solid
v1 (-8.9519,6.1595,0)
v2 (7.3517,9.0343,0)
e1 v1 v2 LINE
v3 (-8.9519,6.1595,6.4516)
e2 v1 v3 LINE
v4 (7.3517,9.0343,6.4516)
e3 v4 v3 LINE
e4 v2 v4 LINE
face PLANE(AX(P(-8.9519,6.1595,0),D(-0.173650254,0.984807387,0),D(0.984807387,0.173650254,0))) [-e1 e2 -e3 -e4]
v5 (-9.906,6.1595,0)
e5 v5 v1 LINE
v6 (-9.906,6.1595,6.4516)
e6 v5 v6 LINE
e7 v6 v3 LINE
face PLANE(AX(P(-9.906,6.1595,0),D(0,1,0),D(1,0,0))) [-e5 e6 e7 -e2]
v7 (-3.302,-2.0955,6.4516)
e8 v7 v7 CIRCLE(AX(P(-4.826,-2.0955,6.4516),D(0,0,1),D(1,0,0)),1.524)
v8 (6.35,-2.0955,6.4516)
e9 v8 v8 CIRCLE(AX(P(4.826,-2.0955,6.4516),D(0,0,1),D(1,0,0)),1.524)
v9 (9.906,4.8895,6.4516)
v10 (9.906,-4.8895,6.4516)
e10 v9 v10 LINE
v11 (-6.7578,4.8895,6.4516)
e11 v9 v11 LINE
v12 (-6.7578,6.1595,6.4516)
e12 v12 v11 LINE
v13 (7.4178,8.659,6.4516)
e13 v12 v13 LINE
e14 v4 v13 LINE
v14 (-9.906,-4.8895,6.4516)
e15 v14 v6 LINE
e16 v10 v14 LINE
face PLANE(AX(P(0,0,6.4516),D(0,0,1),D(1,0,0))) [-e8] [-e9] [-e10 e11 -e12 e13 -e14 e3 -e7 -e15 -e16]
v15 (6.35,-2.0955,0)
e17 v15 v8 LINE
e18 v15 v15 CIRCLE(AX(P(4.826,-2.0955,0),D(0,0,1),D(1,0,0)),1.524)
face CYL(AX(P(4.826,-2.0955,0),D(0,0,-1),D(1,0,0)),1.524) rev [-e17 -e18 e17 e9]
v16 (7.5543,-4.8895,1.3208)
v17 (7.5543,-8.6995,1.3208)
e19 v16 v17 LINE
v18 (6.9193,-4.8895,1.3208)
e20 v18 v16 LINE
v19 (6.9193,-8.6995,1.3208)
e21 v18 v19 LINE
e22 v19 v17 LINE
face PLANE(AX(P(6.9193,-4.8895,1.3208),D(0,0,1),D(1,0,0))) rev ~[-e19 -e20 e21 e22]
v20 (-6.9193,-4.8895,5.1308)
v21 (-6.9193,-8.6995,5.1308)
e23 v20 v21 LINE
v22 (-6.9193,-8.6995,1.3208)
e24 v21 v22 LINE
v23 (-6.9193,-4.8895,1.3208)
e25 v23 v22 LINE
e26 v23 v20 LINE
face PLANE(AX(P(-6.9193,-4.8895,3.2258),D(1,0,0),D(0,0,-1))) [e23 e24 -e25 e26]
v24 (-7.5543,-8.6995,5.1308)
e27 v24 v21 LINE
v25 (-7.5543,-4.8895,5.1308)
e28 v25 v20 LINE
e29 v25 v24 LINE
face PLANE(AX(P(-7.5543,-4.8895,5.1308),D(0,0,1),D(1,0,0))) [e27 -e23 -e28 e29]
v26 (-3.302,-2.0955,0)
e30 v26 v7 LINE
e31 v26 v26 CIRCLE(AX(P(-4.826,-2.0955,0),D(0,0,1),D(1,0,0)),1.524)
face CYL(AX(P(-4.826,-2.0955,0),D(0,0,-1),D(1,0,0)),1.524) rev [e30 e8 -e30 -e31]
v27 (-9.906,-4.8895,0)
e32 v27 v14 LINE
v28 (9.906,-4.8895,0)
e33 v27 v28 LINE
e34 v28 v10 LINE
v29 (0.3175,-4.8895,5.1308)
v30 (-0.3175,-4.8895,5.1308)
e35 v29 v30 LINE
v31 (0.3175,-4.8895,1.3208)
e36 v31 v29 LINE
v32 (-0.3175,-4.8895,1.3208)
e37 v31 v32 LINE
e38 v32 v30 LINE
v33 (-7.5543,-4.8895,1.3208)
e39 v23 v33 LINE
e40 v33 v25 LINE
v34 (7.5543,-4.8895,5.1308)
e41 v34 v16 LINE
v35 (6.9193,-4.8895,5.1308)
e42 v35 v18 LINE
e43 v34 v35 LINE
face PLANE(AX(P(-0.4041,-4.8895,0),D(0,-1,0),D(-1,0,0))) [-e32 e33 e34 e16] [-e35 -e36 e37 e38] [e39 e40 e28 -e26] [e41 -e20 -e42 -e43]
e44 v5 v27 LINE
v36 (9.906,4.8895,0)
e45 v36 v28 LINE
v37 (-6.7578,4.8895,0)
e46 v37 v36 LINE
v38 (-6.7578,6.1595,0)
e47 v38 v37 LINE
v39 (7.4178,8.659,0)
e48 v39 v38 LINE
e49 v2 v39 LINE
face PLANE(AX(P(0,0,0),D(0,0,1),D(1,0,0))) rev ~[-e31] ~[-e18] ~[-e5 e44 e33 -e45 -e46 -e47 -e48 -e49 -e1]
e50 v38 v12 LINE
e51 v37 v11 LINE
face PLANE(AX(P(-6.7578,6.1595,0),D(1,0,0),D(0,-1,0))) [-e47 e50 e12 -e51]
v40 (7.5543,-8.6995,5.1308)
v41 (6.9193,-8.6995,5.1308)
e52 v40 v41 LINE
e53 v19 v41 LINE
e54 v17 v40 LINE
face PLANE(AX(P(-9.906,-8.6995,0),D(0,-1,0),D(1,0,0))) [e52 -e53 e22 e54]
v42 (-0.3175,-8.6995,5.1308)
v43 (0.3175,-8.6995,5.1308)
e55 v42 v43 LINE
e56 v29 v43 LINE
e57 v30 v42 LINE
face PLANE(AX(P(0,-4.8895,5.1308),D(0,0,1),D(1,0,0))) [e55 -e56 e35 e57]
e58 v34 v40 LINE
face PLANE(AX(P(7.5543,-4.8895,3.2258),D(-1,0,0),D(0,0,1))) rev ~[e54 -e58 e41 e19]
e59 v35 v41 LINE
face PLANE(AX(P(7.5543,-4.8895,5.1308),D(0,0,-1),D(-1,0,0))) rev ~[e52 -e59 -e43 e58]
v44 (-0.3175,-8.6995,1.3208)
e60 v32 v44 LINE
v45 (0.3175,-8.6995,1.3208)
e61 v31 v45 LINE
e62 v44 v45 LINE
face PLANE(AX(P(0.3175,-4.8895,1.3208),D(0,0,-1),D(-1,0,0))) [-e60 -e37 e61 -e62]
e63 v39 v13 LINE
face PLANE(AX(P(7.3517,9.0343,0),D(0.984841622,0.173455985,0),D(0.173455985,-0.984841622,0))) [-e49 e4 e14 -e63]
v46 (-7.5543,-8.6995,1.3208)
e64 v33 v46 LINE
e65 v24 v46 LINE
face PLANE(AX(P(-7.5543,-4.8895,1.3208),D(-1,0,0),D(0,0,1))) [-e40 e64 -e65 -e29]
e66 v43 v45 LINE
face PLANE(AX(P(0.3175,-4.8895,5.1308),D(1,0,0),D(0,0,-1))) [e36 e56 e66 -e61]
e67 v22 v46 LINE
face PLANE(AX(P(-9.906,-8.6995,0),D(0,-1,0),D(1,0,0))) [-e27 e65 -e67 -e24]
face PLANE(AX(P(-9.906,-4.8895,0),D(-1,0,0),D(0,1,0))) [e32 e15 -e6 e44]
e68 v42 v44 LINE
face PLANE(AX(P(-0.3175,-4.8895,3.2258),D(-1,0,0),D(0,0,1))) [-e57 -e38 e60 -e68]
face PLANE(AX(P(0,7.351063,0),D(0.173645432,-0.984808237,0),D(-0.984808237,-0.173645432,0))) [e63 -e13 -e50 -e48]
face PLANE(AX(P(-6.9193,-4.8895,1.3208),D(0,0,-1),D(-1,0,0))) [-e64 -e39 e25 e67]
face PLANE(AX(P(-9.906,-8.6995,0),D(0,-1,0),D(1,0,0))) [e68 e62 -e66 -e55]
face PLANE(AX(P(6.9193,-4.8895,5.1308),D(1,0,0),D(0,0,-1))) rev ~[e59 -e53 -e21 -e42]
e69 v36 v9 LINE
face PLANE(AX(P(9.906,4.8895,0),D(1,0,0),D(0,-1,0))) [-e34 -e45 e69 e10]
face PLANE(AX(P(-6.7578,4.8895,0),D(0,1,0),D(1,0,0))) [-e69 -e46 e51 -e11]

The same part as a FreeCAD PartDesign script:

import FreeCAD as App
import Part
import Sketcher
from FreeCAD import Vector
Q = App.Units.Quantity

doc = App.newDocument("Part")
params = doc.addObject("Spreadsheet::Sheet", "Params")
for row, (alias, value) in enumerate([
    ("sketch1_diameter", "0.12 in"),
    ("sketch1_width", "0.78 in"),
    ("sketch1_height", "0.385 in"),
    ("sketch1_height2", "0.435 in"),
    ("sketch1_length", "0.015 in"),
    ("pad1_length", "0.254 in"),
    ("sketch2_height", "0.15 in"),
    ("sketch2_width", "0.025 in"),
    ("pad2_length", "0.15 in"),
], start=1):
    params.set(f"A{row}", alias)
    params.set(f"B{row}", "=" + value)
    params.setAlias(f"B{row}", alias)

body = doc.addObject("PartDesign::Body", "Body")

# Sketch on XY plane
sketch1 = doc.addObject("Sketcher::SketchObject", "Sketch")
body.addObject(sketch1)
sketch1.AttachmentSupport = (doc.XY_Plane, [""])
sketch1.MapMode = "FlatFace"
sketch1.addGeometry(Part.LineSegment(Vector(-9.906, -4.8895, 0), Vector(9.906, -4.8895, 0)), False)
sketch1.addGeometry(Part.LineSegment(Vector(9.906, -4.8895, 0), Vector(9.906, 4.8895, 0)), False)
sketch1.addGeometry(Part.LineSegment(Vector(9.906, 4.8895, 0), Vector(-6.7578, 4.8895, 0)), False)
sketch1.addGeometry(Part.LineSegment(Vector(-6.7578, 4.8895, 0), Vector(-6.7578, 6.1595, 0)), False)
sketch1.addGeometry(Part.LineSegment(Vector(-6.7578, 6.1595, 0), Vector(7.4178, 8.659, 0)), False)
sketch1.addGeometry(Part.LineSegment(Vector(7.4178, 8.659, 0), Vector(7.3517, 9.0343, 0)), False)
sketch1.addGeometry(Part.LineSegment(Vector(7.3517, 9.0343, 0), Vector(-8.9519, 6.1595, 0)), False)
sketch1.addGeometry(Part.LineSegment(Vector(-8.9519, 6.1595, 0), Vector(-9.906, 6.1595, 0)), False)
sketch1.addGeometry(Part.LineSegment(Vector(-9.906, 6.1595, 0), Vector(-9.906, -4.8895, 0)), False)
sketch1.addGeometry(Part.Circle(Vector(-4.826, -2.0955, 0), Vector(0, 0, 1), 1.524), False)
sketch1.addGeometry(Part.Circle(Vector(4.826, -2.0955, 0), Vector(0, 0, 1), 1.524), False)
sketch1.addConstraint(Sketcher.Constraint("Coincident", 0, 2, 1, 1))
sketch1.addConstraint(Sketcher.Constraint("Coincident", 1, 2, 2, 1))
sketch1.addConstraint(Sketcher.Constraint("Coincident", 2, 2, 3, 1))
sketch1.addConstraint(Sketcher.Constraint("Coincident", 3, 2, 4, 1))
sketch1.addConstraint(Sketcher.Constraint("Coincident", 4, 2, 5, 1))
sketch1.addConstraint(Sketcher.Constraint("Coincident", 5, 2, 6, 1))
sketch1.addConstraint(Sketcher.Constraint("Coincident", 6, 2, 7, 1))
sketch1.addConstraint(Sketcher.Constraint("Coincident", 7, 2, 8, 1))
sketch1.addConstraint(Sketcher.Constraint("Coincident", 8, 2, 0, 1))
sketch1.addConstraint(Sketcher.Constraint("Horizontal", 0))
sketch1.addConstraint(Sketcher.Constraint("Vertical", 1))
sketch1.addConstraint(Sketcher.Constraint("Horizontal", 2))
sketch1.addConstraint(Sketcher.Constraint("Vertical", 3))
sketch1.addConstraint(Sketcher.Constraint("Horizontal", 7))
sketch1.addConstraint(Sketcher.Constraint("Vertical", 8))
sketch1.addConstraint(Sketcher.Constraint("Equal", 9, 10))
sketch1.addConstraint(Sketcher.Constraint("Symmetric", 1, 2, 8, 2, -1, 1))
sketch1.addConstraint(Sketcher.Constraint("Symmetric", 9, 3, 10, 3, -2))
sketch1.addConstraint(Sketcher.Constraint("Perpendicular", 4, 5))
sketch1.addConstraint(Sketcher.Constraint("Perpendicular", 5, 6))
sketch1.addConstraint(Sketcher.Constraint("Horizontal", 3, 2, 6, 2))
sketch1.addConstraint(Sketcher.Constraint("Diameter", 9, Q("0.12 in")))
sketch1.addConstraint(Sketcher.Constraint("Angle", 4, Q("9.9998 deg")))
sketch1.addConstraint(Sketcher.Constraint("DistanceX", 0, 1, 0, 2, Q("0.78 in")))
sketch1.addConstraint(Sketcher.Constraint("DistanceY", 1, 1, 1, 2, Q("0.385 in")))
sketch1.addConstraint(Sketcher.Constraint("DistanceY", 8, 2, 8, 1, Q("0.435 in")))
sketch1.addConstraint(Sketcher.Constraint("DistanceX", 9, 3, 10, 3, Q("0.38 in")))
sketch1.addConstraint(Sketcher.Constraint("DistanceY", 0, 2, 10, 3, Q("0.11 in")))
sketch1.addConstraint(Sketcher.Constraint("Distance", 5, Q("0.015 in")))
sketch1.addConstraint(Sketcher.Constraint("Distance", 4, Q("0.5667 in")))
sketch1.addConstraint(Sketcher.Constraint("DistanceX", 2, 2, 2, 1, Q("16.6638 mm")))
sketch1.setExpression("Constraints[21]", "Params.sketch1_diameter")
sketch1.setExpression("Constraints[23]", "Params.sketch1_width")
sketch1.setExpression("Constraints[24]", "Params.sketch1_height")
sketch1.setExpression("Constraints[25]", "Params.sketch1_height2")
sketch1.setExpression("Constraints[28]", "Params.sketch1_length")
pad1 = doc.addObject("PartDesign::Pad", "Pad")
body.addObject(pad1)
pad1.Profile = sketch1
pad1.setExpression("Length", "Params.pad1_length")

# Sketch on XZ plane
sketch2 = doc.addObject("Sketcher::SketchObject", "Sketch001")
body.addObject(sketch2)
sketch2.AttachmentSupport = (doc.XZ_Plane, [""])
sketch2.MapMode = "FlatFace"
sketch2.AttachmentOffset = App.Placement(Vector(0, 0, 0.1925 * 25.4), App.Rotation())
sketch2.addGeometry(Part.LineSegment(Vector(0.3175, 5.1308, 0), Vector(-0.3175, 5.1308, 0)), False)
sketch2.addGeometry(Part.LineSegment(Vector(-0.3175, 5.1308, 0), Vector(-0.3175, 1.3208, 0)), False)
sketch2.addGeometry(Part.LineSegment(Vector(-0.3175, 1.3208, 0), Vector(0.3175, 1.3208, 0)), False)
sketch2.addGeometry(Part.LineSegment(Vector(0.3175, 1.3208, 0), Vector(0.3175, 5.1308, 0)), False)
sketch2.addGeometry(Part.LineSegment(Vector(6.9193, 5.1308, 0), Vector(6.9193, 1.3208, 0)), False)
sketch2.addGeometry(Part.LineSegment(Vector(6.9193, 1.3208, 0), Vector(7.5543, 1.3208, 0)), False)
sketch2.addGeometry(Part.LineSegment(Vector(7.5543, 1.3208, 0), Vector(7.5543, 5.1308, 0)), False)
sketch2.addGeometry(Part.LineSegment(Vector(7.5543, 5.1308, 0), Vector(6.9193, 5.1308, 0)), False)
sketch2.addGeometry(Part.LineSegment(Vector(-6.9193, 1.3208, 0), Vector(-6.9193, 5.1308, 0)), False)
sketch2.addGeometry(Part.LineSegment(Vector(-6.9193, 5.1308, 0), Vector(-7.5543, 5.1308, 0)), False)
sketch2.addGeometry(Part.LineSegment(Vector(-7.5543, 5.1308, 0), Vector(-7.5543, 1.3208, 0)), False)
sketch2.addGeometry(Part.LineSegment(Vector(-7.5543, 1.3208, 0), Vector(-6.9193, 1.3208, 0)), False)
sketch2.addConstraint(Sketcher.Constraint("Coincident", 0, 2, 1, 1))
sketch2.addConstraint(Sketcher.Constraint("Coincident", 1, 2, 2, 1))
sketch2.addConstraint(Sketcher.Constraint("Coincident", 2, 2, 3, 1))
sketch2.addConstraint(Sketcher.Constraint("Coincident", 3, 2, 0, 1))
sketch2.addConstraint(Sketcher.Constraint("Coincident", 4, 2, 5, 1))
sketch2.addConstraint(Sketcher.Constraint("Coincident", 5, 2, 6, 1))
sketch2.addConstraint(Sketcher.Constraint("Coincident", 6, 2, 7, 1))
sketch2.addConstraint(Sketcher.Constraint("Coincident", 7, 2, 4, 1))
sketch2.addConstraint(Sketcher.Constraint("Coincident", 8, 2, 9, 1))
sketch2.addConstraint(Sketcher.Constraint("Coincident", 9, 2, 10, 1))
sketch2.addConstraint(Sketcher.Constraint("Coincident", 10, 2, 11, 1))
sketch2.addConstraint(Sketcher.Constraint("Coincident", 11, 2, 8, 1))
sketch2.addConstraint(Sketcher.Constraint("Horizontal", 0))
sketch2.addConstraint(Sketcher.Constraint("Vertical", 1))
sketch2.addConstraint(Sketcher.Constraint("Horizontal", 2))
sketch2.addConstraint(Sketcher.Constraint("Vertical", 3))
sketch2.addConstraint(Sketcher.Constraint("Vertical", 4))
sketch2.addConstraint(Sketcher.Constraint("Horizontal", 5))
sketch2.addConstraint(Sketcher.Constraint("Vertical", 6))
sketch2.addConstraint(Sketcher.Constraint("Horizontal", 7))
sketch2.addConstraint(Sketcher.Constraint("Vertical", 8))
sketch2.addConstraint(Sketcher.Constraint("Horizontal", 9))
sketch2.addConstraint(Sketcher.Constraint("Vertical", 10))
sketch2.addConstraint(Sketcher.Constraint("Horizontal", 11))
sketch2.addConstraint(Sketcher.Constraint("Symmetric", 7, 2, 8, 2, -2))
sketch2.addConstraint(Sketcher.Constraint("Symmetric", 5, 2, 10, 2, -2))
sketch2.addConstraint(Sketcher.Constraint("Horizontal", 2, 2, 4, 2))
sketch2.addConstraint(Sketcher.Constraint("Horizontal", 3, 2, 6, 2))
sketch2.addConstraint(Sketcher.Constraint("Equal", 2, 5))
sketch2.addConstraint(Sketcher.Constraint("DistanceY", 1, 2, 1, 1, Q("0.15 in")))
sketch2.addConstraint(Sketcher.Constraint("DistanceX", 0, 2, 0, 1, Q("0.025 in")))
sketch2.addConstraint(Sketcher.Constraint("DistanceY", -1, 1, 0, 2, Q("0.202 in")))
sketch2.addConstraint(Sketcher.Constraint("DistanceX", 0, 2, -1, 1, Q("0.0125 in")))
sketch2.addConstraint(Sketcher.Constraint("DistanceX", -1, 1, 4, 2, Q("6.9193 mm")))
sketch2.setExpression("Constraints[29]", "Params.sketch2_height")
sketch2.setExpression("Constraints[30]", "Params.sketch2_width")
pad2 = doc.addObject("PartDesign::Pad", "Pad001")
body.addObject(pad2)
pad2.Profile = sketch2
pad2.setExpression("Length", "Params.pad2_length")

doc.recompute()
